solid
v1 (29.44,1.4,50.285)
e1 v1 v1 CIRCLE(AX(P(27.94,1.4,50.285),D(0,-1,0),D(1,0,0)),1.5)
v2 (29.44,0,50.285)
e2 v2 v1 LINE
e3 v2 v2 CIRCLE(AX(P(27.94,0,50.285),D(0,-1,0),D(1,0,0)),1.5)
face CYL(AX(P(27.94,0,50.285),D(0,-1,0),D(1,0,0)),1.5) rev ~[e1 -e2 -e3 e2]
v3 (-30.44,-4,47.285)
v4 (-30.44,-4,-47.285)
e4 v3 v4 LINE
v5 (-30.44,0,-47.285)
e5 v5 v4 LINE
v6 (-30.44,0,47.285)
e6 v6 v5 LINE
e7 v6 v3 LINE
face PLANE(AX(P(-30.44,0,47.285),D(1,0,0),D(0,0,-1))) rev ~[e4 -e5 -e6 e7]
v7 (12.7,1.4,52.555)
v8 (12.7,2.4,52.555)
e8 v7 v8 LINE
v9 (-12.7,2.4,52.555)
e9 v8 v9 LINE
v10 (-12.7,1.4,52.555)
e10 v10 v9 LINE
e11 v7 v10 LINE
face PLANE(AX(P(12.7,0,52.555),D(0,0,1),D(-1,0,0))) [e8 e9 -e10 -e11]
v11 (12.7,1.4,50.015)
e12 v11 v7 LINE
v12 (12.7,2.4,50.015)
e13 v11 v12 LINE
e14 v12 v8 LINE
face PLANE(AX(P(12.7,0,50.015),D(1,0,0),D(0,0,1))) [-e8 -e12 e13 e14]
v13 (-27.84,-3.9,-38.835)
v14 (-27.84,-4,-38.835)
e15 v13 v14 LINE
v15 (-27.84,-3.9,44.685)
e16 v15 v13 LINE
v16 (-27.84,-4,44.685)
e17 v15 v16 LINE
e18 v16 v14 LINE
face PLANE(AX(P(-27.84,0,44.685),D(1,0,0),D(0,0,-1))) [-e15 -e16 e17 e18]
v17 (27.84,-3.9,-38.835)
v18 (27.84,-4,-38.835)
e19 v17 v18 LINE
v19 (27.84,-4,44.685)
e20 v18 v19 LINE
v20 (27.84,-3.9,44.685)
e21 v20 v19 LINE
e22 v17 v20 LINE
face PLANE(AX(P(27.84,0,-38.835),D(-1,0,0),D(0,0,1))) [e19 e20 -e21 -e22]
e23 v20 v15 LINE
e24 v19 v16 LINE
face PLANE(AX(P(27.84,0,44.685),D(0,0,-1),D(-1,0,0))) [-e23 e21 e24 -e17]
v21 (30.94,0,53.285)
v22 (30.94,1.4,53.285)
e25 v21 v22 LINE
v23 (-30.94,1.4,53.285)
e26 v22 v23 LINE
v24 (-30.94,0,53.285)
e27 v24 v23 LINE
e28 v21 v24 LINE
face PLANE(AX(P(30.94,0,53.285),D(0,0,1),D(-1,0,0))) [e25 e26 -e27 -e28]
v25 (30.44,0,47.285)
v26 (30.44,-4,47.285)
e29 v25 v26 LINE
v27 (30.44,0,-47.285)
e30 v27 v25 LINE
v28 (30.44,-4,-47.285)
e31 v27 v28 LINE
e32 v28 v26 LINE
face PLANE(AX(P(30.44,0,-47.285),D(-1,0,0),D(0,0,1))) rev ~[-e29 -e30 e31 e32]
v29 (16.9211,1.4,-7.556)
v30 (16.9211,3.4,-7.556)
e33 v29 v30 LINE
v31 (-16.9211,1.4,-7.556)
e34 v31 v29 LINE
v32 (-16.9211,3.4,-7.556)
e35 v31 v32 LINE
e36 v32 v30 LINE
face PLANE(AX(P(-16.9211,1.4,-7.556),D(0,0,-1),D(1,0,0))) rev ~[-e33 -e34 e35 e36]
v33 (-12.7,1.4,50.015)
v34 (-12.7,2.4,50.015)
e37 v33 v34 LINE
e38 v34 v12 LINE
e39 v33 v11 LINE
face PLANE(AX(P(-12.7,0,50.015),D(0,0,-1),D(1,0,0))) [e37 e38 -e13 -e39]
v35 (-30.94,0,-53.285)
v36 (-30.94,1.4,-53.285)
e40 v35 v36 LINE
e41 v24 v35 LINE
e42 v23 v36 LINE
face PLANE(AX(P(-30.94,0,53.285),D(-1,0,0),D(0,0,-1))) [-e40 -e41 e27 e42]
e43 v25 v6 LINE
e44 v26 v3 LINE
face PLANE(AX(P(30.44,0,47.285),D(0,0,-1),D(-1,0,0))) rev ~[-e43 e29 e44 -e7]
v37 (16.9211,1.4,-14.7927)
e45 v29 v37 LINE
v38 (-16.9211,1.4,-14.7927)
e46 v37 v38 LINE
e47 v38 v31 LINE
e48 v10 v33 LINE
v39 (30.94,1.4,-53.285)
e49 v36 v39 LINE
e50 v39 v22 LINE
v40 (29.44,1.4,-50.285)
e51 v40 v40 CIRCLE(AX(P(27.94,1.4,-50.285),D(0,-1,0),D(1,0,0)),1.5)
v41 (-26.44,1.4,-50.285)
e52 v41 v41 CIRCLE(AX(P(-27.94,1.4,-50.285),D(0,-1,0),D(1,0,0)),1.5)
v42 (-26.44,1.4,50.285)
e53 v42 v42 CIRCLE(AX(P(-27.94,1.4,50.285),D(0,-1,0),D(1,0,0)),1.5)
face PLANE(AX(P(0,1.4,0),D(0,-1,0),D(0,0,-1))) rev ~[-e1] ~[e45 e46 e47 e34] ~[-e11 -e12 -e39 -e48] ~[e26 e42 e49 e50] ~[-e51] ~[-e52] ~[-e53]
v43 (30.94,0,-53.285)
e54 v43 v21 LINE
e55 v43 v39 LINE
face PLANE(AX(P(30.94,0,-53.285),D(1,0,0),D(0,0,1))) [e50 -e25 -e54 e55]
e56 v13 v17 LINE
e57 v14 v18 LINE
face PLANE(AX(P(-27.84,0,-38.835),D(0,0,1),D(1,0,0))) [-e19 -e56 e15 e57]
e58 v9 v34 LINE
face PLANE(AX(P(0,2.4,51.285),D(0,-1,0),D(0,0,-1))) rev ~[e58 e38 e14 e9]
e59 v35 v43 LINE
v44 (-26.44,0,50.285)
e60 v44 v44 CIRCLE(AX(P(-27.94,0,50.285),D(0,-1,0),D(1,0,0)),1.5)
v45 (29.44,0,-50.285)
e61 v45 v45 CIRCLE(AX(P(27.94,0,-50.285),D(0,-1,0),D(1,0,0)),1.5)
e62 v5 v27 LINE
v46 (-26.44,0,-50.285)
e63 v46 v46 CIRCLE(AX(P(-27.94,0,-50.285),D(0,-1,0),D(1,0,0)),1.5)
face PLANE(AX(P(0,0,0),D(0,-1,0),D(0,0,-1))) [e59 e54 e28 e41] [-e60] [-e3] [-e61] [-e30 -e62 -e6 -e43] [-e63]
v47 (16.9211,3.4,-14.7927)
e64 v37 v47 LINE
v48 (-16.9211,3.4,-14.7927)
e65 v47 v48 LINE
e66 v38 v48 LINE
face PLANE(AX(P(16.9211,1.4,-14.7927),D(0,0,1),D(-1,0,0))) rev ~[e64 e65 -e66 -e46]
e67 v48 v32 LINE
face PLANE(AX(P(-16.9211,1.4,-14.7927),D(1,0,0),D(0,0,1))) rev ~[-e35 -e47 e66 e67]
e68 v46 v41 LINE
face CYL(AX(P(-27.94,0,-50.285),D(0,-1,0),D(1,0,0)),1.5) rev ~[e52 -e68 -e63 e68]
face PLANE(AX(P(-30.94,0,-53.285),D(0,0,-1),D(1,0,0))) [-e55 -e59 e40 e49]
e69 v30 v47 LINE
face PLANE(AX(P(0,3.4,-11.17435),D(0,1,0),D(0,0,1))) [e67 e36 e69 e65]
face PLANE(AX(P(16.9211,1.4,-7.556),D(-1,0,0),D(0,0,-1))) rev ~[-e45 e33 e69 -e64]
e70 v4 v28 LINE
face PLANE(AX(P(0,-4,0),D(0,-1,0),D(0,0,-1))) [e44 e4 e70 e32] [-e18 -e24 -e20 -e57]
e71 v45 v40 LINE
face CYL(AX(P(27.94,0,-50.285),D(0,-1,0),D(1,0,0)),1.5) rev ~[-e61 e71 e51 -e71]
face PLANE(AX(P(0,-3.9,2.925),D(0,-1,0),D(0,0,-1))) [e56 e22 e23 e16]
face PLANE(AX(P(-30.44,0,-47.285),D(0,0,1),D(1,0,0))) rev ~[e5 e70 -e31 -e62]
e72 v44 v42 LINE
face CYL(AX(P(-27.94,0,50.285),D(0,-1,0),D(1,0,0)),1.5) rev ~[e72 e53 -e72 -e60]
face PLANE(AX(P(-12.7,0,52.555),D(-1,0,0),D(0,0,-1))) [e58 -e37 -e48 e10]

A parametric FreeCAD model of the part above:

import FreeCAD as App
import Part
import Sketcher

V = App.Vector
Q = App.Units.Quantity


def add_polygon(sketch, points):
    """Adds a closed chain of lines whose ends are joined by coincident constraints."""
    first, n = sketch.GeometryCount, len(points)
    for a, b in zip(points, points[1:] + points[:1]):
        sketch.addGeometry(Part.LineSegment(App.Vector(*a, 0), App.Vector(*b, 0)), False)
    for i in range(n):
        sketch.addConstraint(Sketcher.Constraint("Coincident", first + i, 2, first + (i + 1) % n, 1))

doc = App.newDocument("Part")
body = doc.addObject("PartDesign::Body", "Body")

sketch1 = body.newObject("Sketcher::SketchObject", "Sketch")
sketch1.AttachmentSupport = (doc.getObject("XZ_Plane"), [""])
sketch1.MapMode = "FlatFace"
add_polygon(sketch1, [(30.9, -53.3), (30.9, 53.3), (-30.9, 53.3), (-30.9, -53.3)])
sketch1.addGeometry(Part.Circle(V(-27.9, -50.3, 0), V(0, 0, 1), 1.5), False)
sketch1.addGeometry(Part.Circle(V(27.9, -50.3, 0), V(0, 0, 1), 1.5), False)
sketch1.addGeometry(Part.Circle(V(-27.9, 50.3, 0), V(0, 0, 1), 1.5), False)
sketch1.addGeometry(Part.Circle(V(27.9, 50.3, 0), V(0, 0, 1), 1.5), False)
sketch1.addConstraint([
    Sketcher.Constraint("Vertical", 0),
    Sketcher.Constraint("Horizontal", 1),
    Sketcher.Constraint("Vertical", 2),
    Sketcher.Constraint("Horizontal", 3),
    Sketcher.Constraint("Equal", 4, 5),
    Sketcher.Constraint("Equal", 5, 6),
    Sketcher.Constraint("Equal", 6, 7),
    Sketcher.Constraint("Symmetric", 5, 3, 6, 3, -1, 1),
    Sketcher.Constraint("Symmetric", 4, 3, 7, 3, -1, 1),
    Sketcher.Constraint("Symmetric", 0, 2, 2, 2, -1, 1),
    Sketcher.Constraint("Symmetric", 4, 3, 5, 3, -2),
    Sketcher.Constraint("Diameter", 4, Q("3 mm")),
    Sketcher.Constraint("DistanceX", 7, 3, 0, 2, Q("3 mm")),
    Sketcher.Constraint("DistanceY", 7, 3, 0, 2, Q("3 mm")),
    Sketcher.Constraint("DistanceX", 1, 2, 1, 1, Q("61.88 mm")),
    Sketcher.Constraint("DistanceY", 0, 1, 0, 2, Q("106.57 mm")),
])
pad1 = body.newObject("PartDesign::Pad", "Pad")
pad1.Profile = sketch1
pad1.Length = 1.4
pad1.Reversed = True

sketch2 = body.newObject("Sketcher::SketchObject", "Sketch001")
sketch2.AttachmentSupport = (doc.getObject("XZ_Plane"), [""])
sketch2.MapMode = "FlatFace"
add_polygon(sketch2, [(30, -47), (30, 47), (-30, 47), (-30, -47)])
add_polygon(sketch2, [(-28, 45), (28, 45), (28, -39), (-28, -39)])
sketch2.addConstraint([
    Sketcher.Constraint("Vertical", 0),
    Sketcher.Constraint("Horizontal", 1),
    Sketcher.Constraint("Vertical", 2),
    Sketcher.Constraint("Horizontal", 3),
    Sketcher.Constraint("Horizontal", 4),
    Sketcher.Constraint("Vertical", 5),
    Sketcher.Constraint("Horizontal", 6),
    Sketcher.Constraint("Vertical", 7),
    Sketcher.Constraint("Symmetric", 0, 2, 2, 2, -1, 1),
    Sketcher.Constraint("DistanceX", 1, 2, 1, 1, Q("60.88 mm")),
    Sketcher.Constraint("DistanceX", 4, 1, 4, 2, Q("55.68 mm")),
    Sketcher.Constraint("DistanceY", 0, 1, 0, 2, Q("94.57 mm")),
    Sketcher.Constraint("DistanceY", 5, 2, 5, 1, Q("83.52 mm")),
    Sketcher.Constraint("DistanceX", 4, 2, 0, 2, Q("2.6 mm")),
    Sketcher.Constraint("DistanceY", 4, 2, 0, 2, Q("2.6 mm")),
])
pad2 = body.newObject("PartDesign::Pad", "Pad001")
pad2.Profile = sketch2
pad2.Length = 4

sketch3 = body.newObject("Sketcher::SketchObject", "Sketch002")
sketch3.AttachmentSupport = (doc.getObject("XZ_Plane"), [""])
sketch3.MapMode = "FlatFace"
add_polygon(sketch3, [(28, -39), (28, 45), (-28, 45), (-28, -39)])
sketch3.addConstraint([
    Sketcher.Constraint("Vertical", 0),
    Sketcher.Constraint("Horizontal", 1),
    Sketcher.Constraint("Vertical", 2),
    Sketcher.Constraint("Horizontal", 3),
    Sketcher.Constraint("DistanceX", 1, 2, 1, 1, Q("55.68 mm")),
    Sketcher.Constraint("DistanceY", 0, 1, 0, 2, Q("83.52 mm")),
    Sketcher.Constraint("DistanceX", -1, 1, 0, 2, Q("27.84 mm")),
    Sketcher.Constraint("DistanceY", -1, 1, 0, 2, Q("44.685 mm")),
])
pad3 = body.newObject("PartDesign::Pad", "Pad002")
pad3.Profile = sketch3
pad3.Length = 2.229

sketch4 = body.newObject("Sketcher::SketchObject", "Sketch003")
sketch4.AttachmentSupport = (doc.getObject("XZ_Plane"), [""])
sketch4.MapMode = "FlatFace"
add_polygon(sketch4, [(12.7, 50), (12.7, 52.6), (-12.7, 52.6), (-12.7, 50)])
sketch4.addConstraint([
    Sketcher.Constraint("Vertical", 0),
    Sketcher.Constraint("Horizontal", 1),
    Sketcher.Constraint("Vertical", 2),
    Sketcher.Constraint("Horizontal", 3),
    Sketcher.Constraint("DistanceX", 1, 2, 1, 1, Q("25.4 mm")),
    Sketcher.Constraint("DistanceY", 0, 1, 0, 2, Q("2.54 mm")),
    Sketcher.Constraint("DistanceX", -1, 1, 0, 2, Q("12.7 mm")),
    Sketcher.Constraint("DistanceY", -1, 1, 0, 2, Q("52.555 mm")),
])
pad4 = body.newObject("PartDesign::Pad", "Pad003")
pad4.Profile = sketch4
pad4.Length = 2.4
pad4.Reversed = True

sketch5 = body.newObject("Sketcher::SketchObject", "Sketch004")
sketch5.AttachmentSupport = (doc.getObject("XZ_Plane"), [""])
sketch5.MapMode = "FlatFace"
sketch5.AttachmentOffset = App.Placement(V(0, 0, -1.4), App.Rotation())
add_polygon(sketch5, [(17, -15), (-17, -15), (-17, -8), (17, -8)])
sketch5.addConstraint([
    Sketcher.Constraint("Horizontal", 0),
    Sketcher.Constraint("Vertical", 1),
    Sketcher.Constraint("Horizontal", 2),
    Sketcher.Constraint("Vertical", 3),
    Sketcher.Constraint("DistanceX", 0, 2, 0, 1, Q("33.8422 mm")),
    Sketcher.Constraint("DistanceY", 1, 1, 1, 2, Q("7.2367 mm")),
    Sketcher.Constraint("DistanceX", 0, 2, -1, 1, Q("16.921 mm")),
    Sketcher.Constraint("DistanceY", 1, 2, -1, 1, Q("7.556 mm")),
])
pad5 = body.newObject("PartDesign::Pad", "Pad004")
pad5.Profile = sketch5
pad5.Length = 2
pad5.Reversed = True

sketch6 = body.newObject("Sketcher::SketchObject", "Sketch005")
sketch6.AttachmentSupport = (doc.getObject("XZ_Plane"), [""])
sketch6.MapMode = "FlatFace"
add_polygon(sketch6, [(28, -39), (28, 45), (-28, 45), (-28, -39)])
sketch6.addConstraint([
    Sketcher.Constraint("Vertical", 0),
    Sketcher.Constraint("Horizontal", 1),
    Sketcher.Constraint("Vertical", 2),
    Sketcher.Constraint("Horizontal", 3),
    Sketcher.Constraint("DistanceX", 1, 2, 1, 1, Q("55.68 mm")),
    Sketcher.Constraint("DistanceY", 0, 1, 0, 2, Q("83.52 mm")),
    Sketcher.Constraint("DistanceX", -1, 1, 0, 2, Q("27.84 mm")),
    Sketcher.Constraint("DistanceY", -1, 1, 0, 2, Q("44.685 mm")),
])
pad6 = body.newObject("PartDesign::Pad", "Pad005")
pad6.Profile = sketch6
pad6.Length = 3.9

doc.recompute()
